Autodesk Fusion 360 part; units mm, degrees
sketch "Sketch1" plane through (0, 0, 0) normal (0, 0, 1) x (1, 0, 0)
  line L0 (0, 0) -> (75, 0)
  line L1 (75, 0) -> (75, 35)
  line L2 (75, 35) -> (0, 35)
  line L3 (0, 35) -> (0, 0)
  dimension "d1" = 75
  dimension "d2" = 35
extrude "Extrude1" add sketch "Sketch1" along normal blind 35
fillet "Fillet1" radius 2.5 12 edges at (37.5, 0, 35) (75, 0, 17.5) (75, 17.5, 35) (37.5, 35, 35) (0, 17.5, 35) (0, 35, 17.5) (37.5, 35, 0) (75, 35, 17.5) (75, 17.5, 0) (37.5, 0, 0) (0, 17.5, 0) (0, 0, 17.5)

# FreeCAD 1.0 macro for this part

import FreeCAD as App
import Part
import Sketcher

V = App.Vector
Q = App.Units.Quantity

doc = App.newDocument("Part")
body = doc.addObject("PartDesign::Body", "Body")

# Sketch on XY plane
sketch1 = body.newObject("Sketcher::SketchObject", "Sketch")
sketch1.AttachmentSupport = (doc.getObject("XY_Plane"), [""])
sketch1.MapMode = "FlatFace"
sketch1.addGeometry([
    Part.LineSegment(V(0, 35, 0), V(0, 0, 0)),
    Part.LineSegment(V(0, 0, 0), V(75, 0, 0)),
    Part.LineSegment(V(75, 0, 0), V(75, 35, 0)),
    Part.LineSegment(V(75, 35, 0), V(0, 35, 0)),
], False)
sketch1.addConstraint([
    Sketcher.Constraint("Coincident", 0, 2, 1, 1),
    Sketcher.Constraint("Coincident", 1, 2, 2, 1),
    Sketcher.Constraint("Coincident", 2, 2, 3, 1),
    Sketcher.Constraint("Coincident", 3, 2, 0, 1),
    Sketcher.Constraint("Vertical", 0),
    Sketcher.Constraint("Horizontal", 1),
    Sketcher.Constraint("Vertical", 2),
    Sketcher.Constraint("Horizontal", 3),
    Sketcher.Constraint("Coincident", 0, 2, -1, 1),
    Sketcher.Constraint("DistanceX", 1, 1, 1, 2, Q("75 mm")),
    Sketcher.Constraint("DistanceY", 0, 2, 0, 1, Q("35 mm")),
])
pad1 = body.newObject("PartDesign::Pad", "Pad")
pad1.Profile = sketch1
pad1.Length = 35
doc.recompute()

fillet = body.newObject("PartDesign::Fillet", "Fillet")
fillet.Base = (pad1, ["Edge1"])
fillet.UseAllEdges = True
fillet.Radius = 2.5

doc.recompute()
